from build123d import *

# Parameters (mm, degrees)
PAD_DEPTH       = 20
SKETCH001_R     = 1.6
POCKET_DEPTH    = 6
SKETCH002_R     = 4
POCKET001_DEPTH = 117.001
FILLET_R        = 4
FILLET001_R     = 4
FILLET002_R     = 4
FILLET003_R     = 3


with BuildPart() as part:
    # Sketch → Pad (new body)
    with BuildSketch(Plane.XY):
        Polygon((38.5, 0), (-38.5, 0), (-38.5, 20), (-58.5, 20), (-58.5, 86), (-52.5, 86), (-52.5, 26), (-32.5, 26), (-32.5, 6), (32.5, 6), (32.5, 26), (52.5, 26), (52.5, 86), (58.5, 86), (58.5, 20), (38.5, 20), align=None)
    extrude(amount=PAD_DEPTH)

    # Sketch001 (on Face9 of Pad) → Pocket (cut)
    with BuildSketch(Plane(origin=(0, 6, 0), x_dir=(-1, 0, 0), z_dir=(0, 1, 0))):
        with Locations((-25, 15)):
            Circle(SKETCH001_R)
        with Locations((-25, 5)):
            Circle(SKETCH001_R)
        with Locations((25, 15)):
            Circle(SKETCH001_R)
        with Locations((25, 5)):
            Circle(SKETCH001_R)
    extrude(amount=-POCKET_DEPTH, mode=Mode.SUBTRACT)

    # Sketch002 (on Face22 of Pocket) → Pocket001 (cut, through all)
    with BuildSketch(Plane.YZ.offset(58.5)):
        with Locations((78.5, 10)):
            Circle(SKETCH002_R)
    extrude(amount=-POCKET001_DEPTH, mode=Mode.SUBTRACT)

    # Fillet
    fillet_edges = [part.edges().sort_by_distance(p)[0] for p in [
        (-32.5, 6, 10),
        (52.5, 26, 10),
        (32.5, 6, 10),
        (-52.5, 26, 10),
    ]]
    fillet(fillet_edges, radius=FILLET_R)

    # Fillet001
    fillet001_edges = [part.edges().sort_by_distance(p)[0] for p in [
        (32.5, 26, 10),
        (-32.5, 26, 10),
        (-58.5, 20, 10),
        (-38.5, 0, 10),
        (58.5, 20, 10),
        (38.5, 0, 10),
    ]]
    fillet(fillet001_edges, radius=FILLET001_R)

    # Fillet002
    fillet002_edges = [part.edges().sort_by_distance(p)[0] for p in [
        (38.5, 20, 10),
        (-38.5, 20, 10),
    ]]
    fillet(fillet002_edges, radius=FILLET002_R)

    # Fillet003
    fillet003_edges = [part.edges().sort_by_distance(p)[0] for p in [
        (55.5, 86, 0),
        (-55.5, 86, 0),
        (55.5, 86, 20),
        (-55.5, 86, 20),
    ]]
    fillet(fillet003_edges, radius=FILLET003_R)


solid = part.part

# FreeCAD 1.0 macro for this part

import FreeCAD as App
import Part
import Sketcher

V = App.Vector
Q = App.Units.Quantity


def edges_at(feature, points):
    """Names of the edges that pass closest to the given points."""
    edges = feature.Shape.Edges
    near = lambda p: min(range(len(edges)), key=lambda i: edges[i].distToShape(Part.Vertex(*p))[0])
    return sorted({f"Edge{near(p) + 1}" for p in points})

doc = App.newDocument("Part")
body = doc.addObject("PartDesign::Body", "Body")

sketch1 = doc.addObject("Sketcher::SketchObject", "Sketch")
body.addObject(sketch1)
sketch1.AttachmentSupport = (doc.XY_Plane, [""])
sketch1.MapMode = "FlatFace"
sketch1.addGeometry([
    Part.LineSegment(V(-38, 0, 0), V(38, 0, 0)),
    Part.LineSegment(V(38, 0, 0), V(38, 20, 0)),
    Part.LineSegment(V(38, 20, 0), V(58, 20, 0)),
    Part.LineSegment(V(58, 20, 0), V(58, 86, 0)),
    Part.LineSegment(V(58, 86, 0), V(52, 86, 0)),
    Part.LineSegment(V(52, 86, 0), V(52, 26, 0)),
    Part.LineSegment(V(52, 26, 0), V(32, 26, 0)),
    Part.LineSegment(V(32, 26, 0), V(32, 6, 0)),
    Part.LineSegment(V(32, 6, 0), V(-32, 6, 0)),
    Part.LineSegment(V(-32, 6, 0), V(-32, 26, 0)),
    Part.LineSegment(V(-32, 26, 0), V(-52, 26, 0)),
    Part.LineSegment(V(-52, 26, 0), V(-52, 86, 0)),
    Part.LineSegment(V(-52, 86, 0), V(-58, 86, 0)),
    Part.LineSegment(V(-58, 86, 0), V(-58, 20, 0)),
    Part.LineSegment(V(-58, 20, 0), V(-38, 20, 0)),
    Part.LineSegment(V(-38, 20, 0), V(-38, 0, 0)),
], False)
sketch1.addConstraint([
    Sketcher.Constraint("Coincident", 0, 2, 1, 1),
    Sketcher.Constraint("Coincident", 1, 2, 2, 1),
    Sketcher.Constraint("Coincident", 2, 2, 3, 1),
    Sketcher.Constraint("Coincident", 3, 2, 4, 1),
    Sketcher.Constraint("Coincident", 4, 2, 5, 1),
    Sketcher.Constraint("Coincident", 5, 2, 6, 1),
    Sketcher.Constraint("Coincident", 6, 2, 7, 1),
    Sketcher.Constraint("Coincident", 7, 2, 8, 1),
    Sketcher.Constraint("Coincident", 8, 2, 9, 1),
    Sketcher.Constraint("Coincident", 9, 2, 10, 1),
    Sketcher.Constraint("Coincident", 10, 2, 11, 1),
    Sketcher.Constraint("Coincident", 11, 2, 12, 1),
    Sketcher.Constraint("Coincident", 12, 2, 13, 1),
    Sketcher.Constraint("Coincident", 13, 2, 14, 1),
    Sketcher.Constraint("Coincident", 14, 2, 15, 1),
    Sketcher.Constraint("Coincident", 15, 2, 0, 1),
    Sketcher.Constraint("Horizontal", 0),
    Sketcher.Constraint("Vertical", 1),
    Sketcher.Constraint("Horizontal", 2),
    Sketcher.Constraint("Vertical", 3),
    Sketcher.Constraint("Horizontal", 4),
    Sketcher.Constraint("Vertical", 5),
    Sketcher.Constraint("Horizontal", 6),
    Sketcher.Constraint("Vertical", 7),
    Sketcher.Constraint("Horizontal", 8),
    Sketcher.Constraint("Vertical", 9),
    Sketcher.Constraint("Horizontal", 10),
    Sketcher.Constraint("Vertical", 11),
    Sketcher.Constraint("Horizontal", 12),
    Sketcher.Constraint("Vertical", 13),
    Sketcher.Constraint("Horizontal", 14),
    Sketcher.Constraint("Vertical", 15),
    Sketcher.Constraint("Symmetric", 0, 2, 15, 2, -1, 1),
    Sketcher.Constraint("Symmetric", 6, 2, 9, 2, -2),
    Sketcher.Constraint("Symmetric", 4, 2, 11, 2, -2),
    Sketcher.Constraint("Symmetric", 2, 2, 13, 2, -2),
    Sketcher.Constraint("Equal", 2, 6),
    Sketcher.Constraint("Equal", 14, 1),
    Sketcher.Constraint("Equal", 1, 7),
    Sketcher.Constraint("DistanceX", 0, 1, 0, 2, Q("77 mm")),
    Sketcher.Constraint("DistanceX", 2, 1, 2, 2, Q("20 mm")),
    Sketcher.Constraint("DistanceX", 4, 2, 4, 1, Q("6 mm")),
    Sketcher.Constraint("DistanceY", 3, 1, 3, 2, Q("66 mm")),
    Sketcher.Constraint("DistanceY", 5, 2, 5, 1, Q("60 mm")),
])
pad1 = doc.addObject("PartDesign::Pad", "Pad")
body.addObject(pad1)
pad1.Profile = sketch1
pad1.Length = 20

sketch2 = doc.addObject("Sketcher::SketchObject", "Sketch001")
body.addObject(sketch2)
sketch2.AttachmentSupport = (doc.XZ_Plane, [""])
sketch2.MapMode = "FlatFace"
sketch2.AttachmentOffset = App.Placement(V(0, 0, -6), App.Rotation())
sketch2.addGeometry([
    Part.Circle(V(25, 15, 0), V(0, 0, 1), 1.6),
    Part.Circle(V(25, 5, 0), V(0, 0, 1), 1.6),
    Part.Circle(V(-25, 15, 0), V(0, 0, 1), 1.6),
    Part.Circle(V(-25, 5, 0), V(0, 0, 1), 1.6),
], False)
sketch2.addConstraint([
    Sketcher.Constraint("Equal", 0, 1),
    Sketcher.Constraint("Equal", 1, 2),
    Sketcher.Constraint("Equal", 2, 3),
    Sketcher.Constraint("Symmetric", 0, 3, 2, 3, -2),
    Sketcher.Constraint("Symmetric", 1, 3, 3, 3, -2),
    Sketcher.Constraint("Vertical", 0, 3, 1, 3),
    Sketcher.Constraint("Diameter", 0, Q("3.2 mm")),
    Sketcher.Constraint("DistanceX", -1, 1, 0, 3, Q("25 mm")),
    Sketcher.Constraint("DistanceY", -1, 1, 0, 3, Q("15 mm")),
    Sketcher.Constraint("DistanceY", -1, 1, 1, 3, Q("5 mm")),
])
pocket1 = doc.addObject("PartDesign::Pocket", "Pocket")
body.addObject(pocket1)
pocket1.Profile = sketch2
pocket1.Length = 6
pocket1.Reversed = True

sketch3 = doc.addObject("Sketcher::SketchObject", "Sketch002")
body.addObject(sketch3)
sketch3.AttachmentSupport = (doc.YZ_Plane, [""])
sketch3.MapMode = "FlatFace"
sketch3.AttachmentOffset = App.Placement(V(0, 0, 58.5), App.Rotation())
sketch3.addGeometry(Part.Circle(V(78.5, 10, 0), V(0, 0, 1), 4), False)
sketch3.addConstraint([
    Sketcher.Constraint("Diameter", 0, Q("8 mm")),
    Sketcher.Constraint("DistanceY", -1, 1, 0, 3, Q("10 mm")),
    Sketcher.Constraint("DistanceX", -1, 1, 0, 3, Q("78.5 mm")),
])
pocket2 = doc.addObject("PartDesign::Pocket", "Pocket001")
body.addObject(pocket2)
pocket2.Profile = sketch3
pocket2.Type = "ThroughAll"
doc.recompute()

fillet = doc.addObject("PartDesign::Fillet", "Fillet")
body.addObject(fillet)
fillet.Base = (pocket2, edges_at(pocket2, [
    (-32.5, 6, 10),
    (52.5, 26, 10),
    (32.5, 6, 10),
    (-52.5, 26, 10),
]))
fillet.Radius = 4
doc.recompute()

fillet2 = doc.addObject("PartDesign::Fillet", "Fillet001")
body.addObject(fillet2)
fillet2.Base = (fillet, edges_at(fillet, [
    (32.5, 26, 10),
    (-32.5, 26, 10),
    (-58.5, 20, 10),
    (-38.5, 0, 10),
    (58.5, 20, 10),
    (38.5, 0, 10),
]))
fillet2.Radius = 4
doc.recompute()

fillet3 = doc.addObject("PartDesign::Fillet", "Fillet002")
body.addObject(fillet3)
fillet3.Base = (fillet2, edges_at(fillet2, [(38.5, 20, 10), (-38.5, 20, 10)]))
fillet3.Radius = 4
doc.recompute()

fillet4 = doc.addObject("PartDesign::Fillet", "Fillet003")
body.addObject(fillet4)
fillet4.Base = (fillet3, edges_at(fillet3, [
    (55.5, 86, 0),
    (-55.5, 86, 0),
    (55.5, 86, 20),
    (-55.5, 86, 20),
]))
fillet4.Radius = 3

doc.recompute()
